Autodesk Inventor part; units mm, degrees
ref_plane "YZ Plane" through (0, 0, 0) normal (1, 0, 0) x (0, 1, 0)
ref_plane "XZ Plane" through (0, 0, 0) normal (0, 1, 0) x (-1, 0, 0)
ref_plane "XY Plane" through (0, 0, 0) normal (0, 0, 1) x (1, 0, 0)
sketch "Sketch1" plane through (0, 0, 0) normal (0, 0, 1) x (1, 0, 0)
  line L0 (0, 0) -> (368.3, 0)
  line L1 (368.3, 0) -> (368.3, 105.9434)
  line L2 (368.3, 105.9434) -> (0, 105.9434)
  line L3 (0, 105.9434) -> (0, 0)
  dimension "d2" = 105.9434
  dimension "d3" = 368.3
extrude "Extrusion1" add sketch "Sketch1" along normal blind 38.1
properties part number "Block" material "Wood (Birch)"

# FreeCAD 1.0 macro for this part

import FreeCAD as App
import Part
import Sketcher

V = App.Vector
Q = App.Units.Quantity

doc = App.newDocument("Part")
body = doc.addObject("PartDesign::Body", "Body")

# Sketch on XY plane
sketch1 = body.newObject("Sketcher::SketchObject", "Sketch")
sketch1.AttachmentSupport = (doc.getObject("XY_Plane"), [""])
sketch1.MapMode = "FlatFace"
sketch1.addGeometry(Part.LineSegment(V(0, 105.9434, 0), V(0, 0, 0)), False)
sketch1.addGeometry(Part.LineSegment(V(0, 0, 0), V(368.3, 0, 0)), False)
sketch1.addGeometry(Part.LineSegment(V(368.3, 0, 0), V(368.3, 105.9434, 0)), False)
sketch1.addGeometry(Part.LineSegment(V(368.3, 105.9434, 0), V(0, 105.9434, 0)), False)
sketch1.addConstraint(Sketcher.Constraint("Coincident", 0, 2, 1, 1))
sketch1.addConstraint(Sketcher.Constraint("Coincident", 1, 2, 2, 1))
sketch1.addConstraint(Sketcher.Constraint("Coincident", 2, 2, 3, 1))
sketch1.addConstraint(Sketcher.Constraint("Coincident", 3, 2, 0, 1))
sketch1.addConstraint(Sketcher.Constraint("Vertical", 0))
sketch1.addConstraint(Sketcher.Constraint("Horizontal", 1))
sketch1.addConstraint(Sketcher.Constraint("Vertical", 2))
sketch1.addConstraint(Sketcher.Constraint("Horizontal", 3))
sketch1.addConstraint(Sketcher.Constraint("Coincident", 0, 2, -1, 1))
sketch1.addConstraint(Sketcher.Constraint("DistanceX", 1, 1, 1, 2, Q("14.5 in")))
sketch1.addConstraint(Sketcher.Constraint("DistanceY", 0, 2, 0, 1, Q("4.171 in")))
pad1 = body.newObject("PartDesign::Pad", "Pad")
pad1.Profile = sketch1
pad1.Length = Q("1.5 in")

doc.recompute()
